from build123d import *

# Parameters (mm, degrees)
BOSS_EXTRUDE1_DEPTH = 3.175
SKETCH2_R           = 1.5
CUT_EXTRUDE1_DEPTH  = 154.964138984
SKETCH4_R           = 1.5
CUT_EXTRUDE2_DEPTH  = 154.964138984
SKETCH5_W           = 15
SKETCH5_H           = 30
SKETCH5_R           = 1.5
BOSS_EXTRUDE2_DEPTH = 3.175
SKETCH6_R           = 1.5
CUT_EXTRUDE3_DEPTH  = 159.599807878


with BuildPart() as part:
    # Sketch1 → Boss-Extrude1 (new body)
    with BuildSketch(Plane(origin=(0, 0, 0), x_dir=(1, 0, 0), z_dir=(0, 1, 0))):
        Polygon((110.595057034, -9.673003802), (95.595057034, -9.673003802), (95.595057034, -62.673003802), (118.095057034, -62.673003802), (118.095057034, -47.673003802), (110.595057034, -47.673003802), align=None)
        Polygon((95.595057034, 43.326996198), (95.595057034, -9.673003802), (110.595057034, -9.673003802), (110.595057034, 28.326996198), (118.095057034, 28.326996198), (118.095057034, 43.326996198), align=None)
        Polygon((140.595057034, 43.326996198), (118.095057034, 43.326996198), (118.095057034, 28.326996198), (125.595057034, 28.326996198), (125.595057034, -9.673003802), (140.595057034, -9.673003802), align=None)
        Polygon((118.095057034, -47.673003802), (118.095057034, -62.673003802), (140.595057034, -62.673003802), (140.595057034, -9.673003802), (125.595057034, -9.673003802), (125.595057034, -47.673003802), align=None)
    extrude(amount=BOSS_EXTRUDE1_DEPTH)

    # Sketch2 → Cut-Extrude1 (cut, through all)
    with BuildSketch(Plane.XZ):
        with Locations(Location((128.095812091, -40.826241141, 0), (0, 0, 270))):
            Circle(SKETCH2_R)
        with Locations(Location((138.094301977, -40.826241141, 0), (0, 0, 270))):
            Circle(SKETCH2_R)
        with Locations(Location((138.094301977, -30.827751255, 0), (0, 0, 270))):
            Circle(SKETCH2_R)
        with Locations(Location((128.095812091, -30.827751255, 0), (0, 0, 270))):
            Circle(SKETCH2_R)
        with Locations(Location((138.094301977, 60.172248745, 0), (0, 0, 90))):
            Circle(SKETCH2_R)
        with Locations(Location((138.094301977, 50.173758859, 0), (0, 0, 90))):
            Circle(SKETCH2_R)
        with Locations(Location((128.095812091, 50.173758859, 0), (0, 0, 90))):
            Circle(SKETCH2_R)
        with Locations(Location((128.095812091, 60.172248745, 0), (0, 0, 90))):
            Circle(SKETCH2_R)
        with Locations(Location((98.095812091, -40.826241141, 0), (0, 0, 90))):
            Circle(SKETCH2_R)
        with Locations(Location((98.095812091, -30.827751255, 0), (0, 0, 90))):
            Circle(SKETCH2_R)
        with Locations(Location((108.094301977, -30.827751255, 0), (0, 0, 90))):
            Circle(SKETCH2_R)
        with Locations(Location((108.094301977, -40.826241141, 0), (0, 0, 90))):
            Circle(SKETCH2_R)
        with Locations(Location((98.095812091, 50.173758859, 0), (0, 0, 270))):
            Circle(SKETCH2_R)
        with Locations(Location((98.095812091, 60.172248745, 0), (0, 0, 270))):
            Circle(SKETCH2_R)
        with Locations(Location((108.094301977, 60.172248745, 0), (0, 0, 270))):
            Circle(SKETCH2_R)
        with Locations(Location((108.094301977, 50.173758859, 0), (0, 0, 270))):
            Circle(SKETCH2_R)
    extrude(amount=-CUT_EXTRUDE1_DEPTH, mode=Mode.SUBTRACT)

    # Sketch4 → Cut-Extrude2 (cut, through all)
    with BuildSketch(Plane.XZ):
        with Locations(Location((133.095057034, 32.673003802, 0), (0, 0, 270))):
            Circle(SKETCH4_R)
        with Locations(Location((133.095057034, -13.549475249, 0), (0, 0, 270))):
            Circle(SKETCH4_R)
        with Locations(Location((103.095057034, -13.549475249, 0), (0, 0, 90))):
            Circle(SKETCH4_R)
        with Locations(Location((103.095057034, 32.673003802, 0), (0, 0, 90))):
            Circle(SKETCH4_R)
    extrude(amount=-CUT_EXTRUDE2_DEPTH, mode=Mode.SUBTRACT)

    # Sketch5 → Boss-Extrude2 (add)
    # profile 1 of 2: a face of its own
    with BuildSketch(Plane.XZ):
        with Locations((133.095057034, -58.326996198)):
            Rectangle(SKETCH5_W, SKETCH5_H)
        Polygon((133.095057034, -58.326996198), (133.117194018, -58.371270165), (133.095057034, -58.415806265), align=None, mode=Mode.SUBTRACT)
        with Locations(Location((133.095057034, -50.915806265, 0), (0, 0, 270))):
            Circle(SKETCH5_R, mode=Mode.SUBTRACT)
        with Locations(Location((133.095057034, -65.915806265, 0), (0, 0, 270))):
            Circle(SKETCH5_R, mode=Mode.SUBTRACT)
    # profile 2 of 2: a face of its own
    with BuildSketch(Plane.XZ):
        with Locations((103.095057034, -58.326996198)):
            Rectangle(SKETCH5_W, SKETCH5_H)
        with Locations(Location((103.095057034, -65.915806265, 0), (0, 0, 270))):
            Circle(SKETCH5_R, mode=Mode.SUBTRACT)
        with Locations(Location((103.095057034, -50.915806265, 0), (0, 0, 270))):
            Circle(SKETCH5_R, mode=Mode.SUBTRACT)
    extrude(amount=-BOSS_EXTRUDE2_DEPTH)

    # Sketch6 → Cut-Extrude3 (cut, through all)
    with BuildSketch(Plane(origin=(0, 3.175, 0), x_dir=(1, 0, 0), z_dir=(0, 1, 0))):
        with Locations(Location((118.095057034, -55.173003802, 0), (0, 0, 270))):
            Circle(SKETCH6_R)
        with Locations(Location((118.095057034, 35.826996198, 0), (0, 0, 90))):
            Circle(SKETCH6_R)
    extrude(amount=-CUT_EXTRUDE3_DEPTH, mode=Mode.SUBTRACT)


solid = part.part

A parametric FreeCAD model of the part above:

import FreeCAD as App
import Part
import Sketcher
Q = App.Units.Quantity

doc = App.newDocument("Part")
body = doc.addObject("PartDesign::Body", "Body")

sketch1 = body.newObject("Sketcher::SketchObject", "Sketch")
sketch1.AttachmentSupport = (doc.getObject("XZ_Plane"), [""])
sketch1.MapMode = "FlatFace"
sketch1.addGeometry([
    Part.LineSegment(App.Vector(96, 63, 0), App.Vector(141, 63, 0)),
    Part.LineSegment(App.Vector(141, 63, 0), App.Vector(141, -43, 0)),
    Part.LineSegment(App.Vector(141, -43, 0), App.Vector(96, -43, 0)),
    Part.LineSegment(App.Vector(96, -43, 0), App.Vector(96, 63, 0)),
    Part.LineSegment(App.Vector(111, 48, 0), App.Vector(111, -28, 0)),
    Part.LineSegment(App.Vector(111, -28, 0), App.Vector(126, -28, 0)),
    Part.LineSegment(App.Vector(126, -28, 0), App.Vector(126, 48, 0)),
    Part.LineSegment(App.Vector(126, 48, 0), App.Vector(111, 48, 0)),
], False)
sketch1.addConstraint([
    Sketcher.Constraint("Coincident", 0, 2, 1, 1),
    Sketcher.Constraint("Coincident", 1, 2, 2, 1),
    Sketcher.Constraint("Coincident", 2, 2, 3, 1),
    Sketcher.Constraint("Coincident", 3, 2, 0, 1),
    Sketcher.Constraint("Coincident", 4, 2, 5, 1),
    Sketcher.Constraint("Coincident", 5, 2, 6, 1),
    Sketcher.Constraint("Coincident", 6, 2, 7, 1),
    Sketcher.Constraint("Coincident", 7, 2, 4, 1),
    Sketcher.Constraint("Horizontal", 0),
    Sketcher.Constraint("Vertical", 1),
    Sketcher.Constraint("Horizontal", 2),
    Sketcher.Constraint("Vertical", 3),
    Sketcher.Constraint("Vertical", 4),
    Sketcher.Constraint("Horizontal", 5),
    Sketcher.Constraint("Vertical", 6),
    Sketcher.Constraint("Horizontal", 7),
    Sketcher.Constraint("DistanceX", 0, 1, 0, 2, 45.0),
    Sketcher.Constraint("DistanceX", 5, 1, 5, 2, 15.0),
    Sketcher.Constraint("DistanceY", 1, 2, 1, 1, 106.0),
    Sketcher.Constraint("DistanceY", 4, 2, 4, 1, 76.0),
    Sketcher.Constraint("DistanceX", 2, 2, 4, 2, 15.0),
    Sketcher.Constraint("DistanceY", 2, 2, 4, 2, 15.0),
    Sketcher.Constraint("DistanceX", -1, 1, 0, 2, 140.595057),
    Sketcher.Constraint("DistanceY", -1, 1, 0, 2, 62.673004),
])
pad1 = body.newObject("PartDesign::Pad", "Pad")
pad1.Profile = sketch1
pad1.Length = 3.175
pad1.Reversed = True

sketch2 = body.newObject("Sketcher::SketchObject", "Sketch001")
sketch2.AttachmentSupport = (doc.getObject("XZ_Plane"), [""])
sketch2.MapMode = "FlatFace"
sketch2.addGeometry([
    Part.Circle(App.Vector(128.1, -40.8, 0), App.Vector(0, 0, 1), 1.5),
    Part.Circle(App.Vector(138.1, -40.8, 0), App.Vector(0, 0, 1), 1.5),
    Part.Circle(App.Vector(138.1, -30.8, 0), App.Vector(0, 0, 1), 1.5),
    Part.Circle(App.Vector(128.1, -30.8, 0), App.Vector(0, 0, 1), 1.5),
    Part.Circle(App.Vector(138.1, 60.2, 0), App.Vector(0, 0, 1), 1.5),
    Part.Circle(App.Vector(138.1, 50.2, 0), App.Vector(0, 0, 1), 1.5),
    Part.Circle(App.Vector(128.1, 50.2, 0), App.Vector(0, 0, 1), 1.5),
    Part.Circle(App.Vector(128.1, 60.2, 0), App.Vector(0, 0, 1), 1.5),
    Part.Circle(App.Vector(98.1, -40.8, 0), App.Vector(0, 0, 1), 1.5),
    Part.Circle(App.Vector(98.1, -30.8, 0), App.Vector(0, 0, 1), 1.5),
    Part.Circle(App.Vector(108.1, -30.8, 0), App.Vector(0, 0, 1), 1.5),
    Part.Circle(App.Vector(108.1, -40.8, 0), App.Vector(0, 0, 1), 1.5),
    Part.Circle(App.Vector(98.1, 50.2, 0), App.Vector(0, 0, 1), 1.5),
    Part.Circle(App.Vector(98.1, 60.2, 0), App.Vector(0, 0, 1), 1.5),
    Part.Circle(App.Vector(108.1, 60.2, 0), App.Vector(0, 0, 1), 1.5),
    Part.Circle(App.Vector(108.1, 50.2, 0), App.Vector(0, 0, 1), 1.5),
], False)
sketch2.addConstraint([
    Sketcher.Constraint("Equal", 0, 1),
    Sketcher.Constraint("Equal", 1, 2),
    Sketcher.Constraint("Equal", 2, 3),
    Sketcher.Constraint("Equal", 3, 4),
    Sketcher.Constraint("Equal", 4, 5),
    Sketcher.Constraint("Equal", 5, 6),
    Sketcher.Constraint("Equal", 6, 7),
    Sketcher.Constraint("Equal", 7, 8),
    Sketcher.Constraint("Equal", 8, 9),
    Sketcher.Constraint("Equal", 9, 10),
    Sketcher.Constraint("Equal", 10, 11),
    Sketcher.Constraint("Equal", 11, 12),
    Sketcher.Constraint("Equal", 12, 13),
    Sketcher.Constraint("Equal", 13, 14),
    Sketcher.Constraint("Equal", 14, 15),
    Sketcher.Constraint("Horizontal", 0, 3, 1, 3),
    Sketcher.Constraint("Horizontal", 2, 3, 3, 3),
    Sketcher.Constraint("Horizontal", 5, 3, 6, 3),
    Sketcher.Constraint("Horizontal", 4, 3, 7, 3),
    Sketcher.Constraint("Horizontal", 1, 3, 8, 3),
    Sketcher.Constraint("Horizontal", 3, 3, 9, 3),
    Sketcher.Constraint("Horizontal", 9, 3, 10, 3),
    Sketcher.Constraint("Horizontal", 8, 3, 11, 3),
    Sketcher.Constraint("Horizontal", 6, 3, 12, 3),
    Sketcher.Constraint("Horizontal", 7, 3, 13, 3),
    Sketcher.Constraint("Horizontal", 13, 3, 14, 3),
    Sketcher.Constraint("Horizontal", 12, 3, 15, 3),
    Sketcher.Constraint("Vertical", 1, 3, 2, 3),
    Sketcher.Constraint("Vertical", 0, 3, 3, 3),
    Sketcher.Constraint("Vertical", 2, 3, 4, 3),
    Sketcher.Constraint("Vertical", 4, 3, 5, 3),
    Sketcher.Constraint("Vertical", 3, 3, 6, 3),
    Sketcher.Constraint("Vertical", 6, 3, 7, 3),
    Sketcher.Constraint("Vertical", 8, 3, 9, 3),
    Sketcher.Constraint("Vertical", 10, 3, 11, 3),
    Sketcher.Constraint("Vertical", 9, 3, 12, 3),
    Sketcher.Constraint("Vertical", 12, 3, 13, 3),
    Sketcher.Constraint("Vertical", 11, 3, 14, 3),
    Sketcher.Constraint("Vertical", 14, 3, 15, 3),
    Sketcher.Constraint("Diameter", 0, 3.0),
    Sketcher.Constraint("DistanceY", 2, 3, 4, 3, 91.0),
    Sketcher.Constraint("DistanceY", 1, 3, 5, 3, 91.0),
    Sketcher.Constraint("DistanceX", 8, 3, 0, 3, 30.0),
    Sketcher.Constraint("DistanceX", 10, 3, 2, 3, 30.0),
    Sketcher.Constraint("DistanceX", -1, 1, 1, 3, 138.094302),
    Sketcher.Constraint("DistanceY", 0, 3, -1, 1, 40.826241),
    Sketcher.Constraint("DistanceY", 2, 3, -1, 1, 30.827751),
    Sketcher.Constraint("DistanceX", 0, 3, 1, 3, 9.99849),
])
pocket1 = body.newObject("PartDesign::Pocket", "Pocket")
pocket1.Profile = sketch2
pocket1.Type = "ThroughAll"

sketch3 = body.newObject("Sketcher::SketchObject", "Sketch002")
sketch3.AttachmentSupport = (doc.getObject("XZ_Plane"), [""])
sketch3.MapMode = "FlatFace"
sketch3.addGeometry([
    Part.Circle(App.Vector(133.1, 32.7, 0), App.Vector(0, 0, 1), 1.5),
    Part.Circle(App.Vector(133.1, -13.5, 0), App.Vector(0, 0, 1), 1.5),
    Part.Circle(App.Vector(103.1, -13.5, 0), App.Vector(0, 0, 1), 1.5),
    Part.Circle(App.Vector(103.1, 32.7, 0), App.Vector(0, 0, 1), 1.5),
], False)
sketch3.addConstraint([
    Sketcher.Constraint("Equal", 0, 1),
    Sketcher.Constraint("Equal", 1, 2),
    Sketcher.Constraint("Equal", 2, 3),
    Sketcher.Constraint("Horizontal", 1, 3, 2, 3),
    Sketcher.Constraint("Horizontal", 0, 3, 3, 3),
    Sketcher.Constraint("Vertical", 0, 3, 1, 3),
    Sketcher.Constraint("Vertical", 2, 3, 3, 3),
    Sketcher.Constraint("Diameter", 0, 3.0),
    Sketcher.Constraint("DistanceX", 2, 3, 1, 3, 30.0),
    Sketcher.Constraint("DistanceY", 1, 3, 0, 3, 46.222479),
    Sketcher.Constraint("DistanceX", -1, 1, 0, 3, 133.095057),
    Sketcher.Constraint("DistanceY", -1, 1, 0, 3, 32.673004),
])
pocket2 = body.newObject("PartDesign::Pocket", "Pocket001")
pocket2.Profile = sketch3
pocket2.Type = "ThroughAll"

sketch4 = body.newObject("Sketcher::SketchObject", "Sketch003")
sketch4.AttachmentSupport = (doc.getObject("XZ_Plane"), [""])
sketch4.MapMode = "FlatFace"
sketch4.addGeometry([
    Part.LineSegment(App.Vector(125.595, -43.327, 0), App.Vector(125.595, -73.327, 0)),
    Part.LineSegment(App.Vector(125.595, -73.327, 0), App.Vector(140.595, -73.327, 0)),
    Part.LineSegment(App.Vector(140.595, -73.327, 0), App.Vector(140.595, -43.327, 0)),
    Part.LineSegment(App.Vector(140.595, -43.327, 0), App.Vector(125.595, -43.327, 0)),
    Part.Circle(App.Vector(133.095, -65.916, 0), App.Vector(0, 0, 1), 1.5),
    Part.LineSegment(App.Vector(133.095, -58.416, 0), App.Vector(133.095, -58.327, 0)),
    Part.LineSegment(App.Vector(133.095, -58.327, 0), App.Vector(133.117, -58.371, 0)),
    Part.LineSegment(App.Vector(133.117, -58.371, 0), App.Vector(133.095, -58.416, 0)),
    Part.Circle(App.Vector(133.095, -50.916, 0), App.Vector(0, 0, 1), 1.5),
    Part.LineSegment(App.Vector(95.595, -43.327, 0), App.Vector(95.595, -73.327, 0)),
    Part.LineSegment(App.Vector(95.595, -73.327, 0), App.Vector(110.595, -73.327, 0)),
    Part.LineSegment(App.Vector(110.595, -73.327, 0), App.Vector(110.595, -43.327, 0)),
    Part.LineSegment(App.Vector(110.595, -43.327, 0), App.Vector(95.595, -43.327, 0)),
    Part.Circle(App.Vector(103.095, -65.916, 0), App.Vector(0, 0, 1), 1.5),
    Part.Circle(App.Vector(103.095, -50.916, 0), App.Vector(0, 0, 1), 1.5),
], False)
sketch4.addConstraint([
    Sketcher.Constraint("Coincident", 0, 2, 1, 1),
    Sketcher.Constraint("Coincident", 1, 2, 2, 1),
    Sketcher.Constraint("Coincident", 2, 2, 3, 1),
    Sketcher.Constraint("Coincident", 3, 2, 0, 1),
    Sketcher.Constraint("Coincident", 5, 2, 6, 1),
    Sketcher.Constraint("Coincident", 6, 2, 7, 1),
    Sketcher.Constraint("Coincident", 7, 2, 5, 1),
    Sketcher.Constraint("Coincident", 9, 2, 10, 1),
    Sketcher.Constraint("Coincident", 10, 2, 11, 1),
    Sketcher.Constraint("Coincident", 11, 2, 12, 1),
    Sketcher.Constraint("Coincident", 12, 2, 9, 1),
    Sketcher.Constraint("Vertical", 0),
    Sketcher.Constraint("Horizontal", 1),
    Sketcher.Constraint("Vertical", 2),
    Sketcher.Constraint("Horizontal", 3),
    Sketcher.Constraint("Vertical", 5),
    Sketcher.Constraint("Vertical", 9),
    Sketcher.Constraint("Horizontal", 10),
    Sketcher.Constraint("Vertical", 11),
    Sketcher.Constraint("Horizontal", 12),
    Sketcher.Constraint("Equal", 4, 8),
    Sketcher.Constraint("Equal", 8, 13),
    Sketcher.Constraint("Equal", 13, 14),
    Sketcher.Constraint("Horizontal", 4, 3, 13, 3),
    Sketcher.Constraint("Horizontal", 8, 3, 14, 3),
    Sketcher.Constraint("Horizontal", 1, 2, 9, 2),
    Sketcher.Constraint("Horizontal", 3, 2, 11, 2),
    Sketcher.Constraint("Vertical", 4, 3, 8, 3),
    Sketcher.Constraint("Vertical", 13, 3, 14, 3),
    Sketcher.Constraint("Vertical", 8, 3, 5, 2),
    Sketcher.Constraint("Equal", 3, 10),
    Sketcher.Constraint("Diameter", 4, 3.0),
    Sketcher.Constraint("DistanceX", 1, 1, 1, 2, 15.0),
    Sketcher.Constraint("DistanceY", 0, 2, 0, 1, 30.0),
    Sketcher.Constraint("DistanceY", 4, 3, 8, 3, 15.0),
    Sketcher.Constraint("DistanceX", 13, 3, 4, 3, 30.0),
    Sketcher.Constraint("DistanceY", 0, 2, 5, 2, 15.0),
    Sketcher.Constraint("DistanceX", 9, 2, 0, 2, 30.0),
    Sketcher.Constraint("Angle", 7, Q("-116.429999 deg")),
    Sketcher.Constraint("DistanceX", 0, 2, 4, 3, 7.5),
    Sketcher.Constraint("DistanceY", 4, 3, 7, 2, 7.5),
    Sketcher.Constraint("Distance", 6, 0.0495),
    Sketcher.Constraint("DistanceY", 5, 1, 5, 2, 0.08881),
    Sketcher.Constraint("DistanceY", 6, 2, -1, 1, 58.37127),
    Sketcher.Constraint("DistanceX", -1, 1, 4, 3, 133.095057),
])
pad2 = body.newObject("PartDesign::Pad", "Pad001")
pad2.Profile = sketch4
pad2.Length = 3.175
pad2.Reversed = True

sketch5 = body.newObject("Sketcher::SketchObject", "Sketch004")
sketch5.AttachmentSupport = (doc.getObject("XZ_Plane"), [""])
sketch5.MapMode = "FlatFace"
sketch5.AttachmentOffset = App.Placement(App.Vector(0, 0, -3.175), App.Rotation())
sketch5.addGeometry([
    Part.Circle(App.Vector(118.1, 55.2, 0), App.Vector(0, 0, 1), 1.5),
    Part.Circle(App.Vector(118.1, -35.8, 0), App.Vector(0, 0, 1), 1.5),
], False)
sketch5.addConstraint([
    Sketcher.Constraint("Equal", 0, 1),
    Sketcher.Constraint("Vertical", 0, 3, 1, 3),
    Sketcher.Constraint("Diameter", 0, 3.0),
    Sketcher.Constraint("DistanceY", 1, 3, 0, 3, 91.0),
    Sketcher.Constraint("DistanceX", -1, 1, 0, 3, 118.095057),
    Sketcher.Constraint("DistanceY", -1, 1, 0, 3, 55.173004),
])
pocket3 = body.newObject("PartDesign::Pocket", "Pocket002")
pocket3.Profile = sketch5
pocket3.Type = "ThroughAll"
pocket3.Reversed = True

doc.recompute()
